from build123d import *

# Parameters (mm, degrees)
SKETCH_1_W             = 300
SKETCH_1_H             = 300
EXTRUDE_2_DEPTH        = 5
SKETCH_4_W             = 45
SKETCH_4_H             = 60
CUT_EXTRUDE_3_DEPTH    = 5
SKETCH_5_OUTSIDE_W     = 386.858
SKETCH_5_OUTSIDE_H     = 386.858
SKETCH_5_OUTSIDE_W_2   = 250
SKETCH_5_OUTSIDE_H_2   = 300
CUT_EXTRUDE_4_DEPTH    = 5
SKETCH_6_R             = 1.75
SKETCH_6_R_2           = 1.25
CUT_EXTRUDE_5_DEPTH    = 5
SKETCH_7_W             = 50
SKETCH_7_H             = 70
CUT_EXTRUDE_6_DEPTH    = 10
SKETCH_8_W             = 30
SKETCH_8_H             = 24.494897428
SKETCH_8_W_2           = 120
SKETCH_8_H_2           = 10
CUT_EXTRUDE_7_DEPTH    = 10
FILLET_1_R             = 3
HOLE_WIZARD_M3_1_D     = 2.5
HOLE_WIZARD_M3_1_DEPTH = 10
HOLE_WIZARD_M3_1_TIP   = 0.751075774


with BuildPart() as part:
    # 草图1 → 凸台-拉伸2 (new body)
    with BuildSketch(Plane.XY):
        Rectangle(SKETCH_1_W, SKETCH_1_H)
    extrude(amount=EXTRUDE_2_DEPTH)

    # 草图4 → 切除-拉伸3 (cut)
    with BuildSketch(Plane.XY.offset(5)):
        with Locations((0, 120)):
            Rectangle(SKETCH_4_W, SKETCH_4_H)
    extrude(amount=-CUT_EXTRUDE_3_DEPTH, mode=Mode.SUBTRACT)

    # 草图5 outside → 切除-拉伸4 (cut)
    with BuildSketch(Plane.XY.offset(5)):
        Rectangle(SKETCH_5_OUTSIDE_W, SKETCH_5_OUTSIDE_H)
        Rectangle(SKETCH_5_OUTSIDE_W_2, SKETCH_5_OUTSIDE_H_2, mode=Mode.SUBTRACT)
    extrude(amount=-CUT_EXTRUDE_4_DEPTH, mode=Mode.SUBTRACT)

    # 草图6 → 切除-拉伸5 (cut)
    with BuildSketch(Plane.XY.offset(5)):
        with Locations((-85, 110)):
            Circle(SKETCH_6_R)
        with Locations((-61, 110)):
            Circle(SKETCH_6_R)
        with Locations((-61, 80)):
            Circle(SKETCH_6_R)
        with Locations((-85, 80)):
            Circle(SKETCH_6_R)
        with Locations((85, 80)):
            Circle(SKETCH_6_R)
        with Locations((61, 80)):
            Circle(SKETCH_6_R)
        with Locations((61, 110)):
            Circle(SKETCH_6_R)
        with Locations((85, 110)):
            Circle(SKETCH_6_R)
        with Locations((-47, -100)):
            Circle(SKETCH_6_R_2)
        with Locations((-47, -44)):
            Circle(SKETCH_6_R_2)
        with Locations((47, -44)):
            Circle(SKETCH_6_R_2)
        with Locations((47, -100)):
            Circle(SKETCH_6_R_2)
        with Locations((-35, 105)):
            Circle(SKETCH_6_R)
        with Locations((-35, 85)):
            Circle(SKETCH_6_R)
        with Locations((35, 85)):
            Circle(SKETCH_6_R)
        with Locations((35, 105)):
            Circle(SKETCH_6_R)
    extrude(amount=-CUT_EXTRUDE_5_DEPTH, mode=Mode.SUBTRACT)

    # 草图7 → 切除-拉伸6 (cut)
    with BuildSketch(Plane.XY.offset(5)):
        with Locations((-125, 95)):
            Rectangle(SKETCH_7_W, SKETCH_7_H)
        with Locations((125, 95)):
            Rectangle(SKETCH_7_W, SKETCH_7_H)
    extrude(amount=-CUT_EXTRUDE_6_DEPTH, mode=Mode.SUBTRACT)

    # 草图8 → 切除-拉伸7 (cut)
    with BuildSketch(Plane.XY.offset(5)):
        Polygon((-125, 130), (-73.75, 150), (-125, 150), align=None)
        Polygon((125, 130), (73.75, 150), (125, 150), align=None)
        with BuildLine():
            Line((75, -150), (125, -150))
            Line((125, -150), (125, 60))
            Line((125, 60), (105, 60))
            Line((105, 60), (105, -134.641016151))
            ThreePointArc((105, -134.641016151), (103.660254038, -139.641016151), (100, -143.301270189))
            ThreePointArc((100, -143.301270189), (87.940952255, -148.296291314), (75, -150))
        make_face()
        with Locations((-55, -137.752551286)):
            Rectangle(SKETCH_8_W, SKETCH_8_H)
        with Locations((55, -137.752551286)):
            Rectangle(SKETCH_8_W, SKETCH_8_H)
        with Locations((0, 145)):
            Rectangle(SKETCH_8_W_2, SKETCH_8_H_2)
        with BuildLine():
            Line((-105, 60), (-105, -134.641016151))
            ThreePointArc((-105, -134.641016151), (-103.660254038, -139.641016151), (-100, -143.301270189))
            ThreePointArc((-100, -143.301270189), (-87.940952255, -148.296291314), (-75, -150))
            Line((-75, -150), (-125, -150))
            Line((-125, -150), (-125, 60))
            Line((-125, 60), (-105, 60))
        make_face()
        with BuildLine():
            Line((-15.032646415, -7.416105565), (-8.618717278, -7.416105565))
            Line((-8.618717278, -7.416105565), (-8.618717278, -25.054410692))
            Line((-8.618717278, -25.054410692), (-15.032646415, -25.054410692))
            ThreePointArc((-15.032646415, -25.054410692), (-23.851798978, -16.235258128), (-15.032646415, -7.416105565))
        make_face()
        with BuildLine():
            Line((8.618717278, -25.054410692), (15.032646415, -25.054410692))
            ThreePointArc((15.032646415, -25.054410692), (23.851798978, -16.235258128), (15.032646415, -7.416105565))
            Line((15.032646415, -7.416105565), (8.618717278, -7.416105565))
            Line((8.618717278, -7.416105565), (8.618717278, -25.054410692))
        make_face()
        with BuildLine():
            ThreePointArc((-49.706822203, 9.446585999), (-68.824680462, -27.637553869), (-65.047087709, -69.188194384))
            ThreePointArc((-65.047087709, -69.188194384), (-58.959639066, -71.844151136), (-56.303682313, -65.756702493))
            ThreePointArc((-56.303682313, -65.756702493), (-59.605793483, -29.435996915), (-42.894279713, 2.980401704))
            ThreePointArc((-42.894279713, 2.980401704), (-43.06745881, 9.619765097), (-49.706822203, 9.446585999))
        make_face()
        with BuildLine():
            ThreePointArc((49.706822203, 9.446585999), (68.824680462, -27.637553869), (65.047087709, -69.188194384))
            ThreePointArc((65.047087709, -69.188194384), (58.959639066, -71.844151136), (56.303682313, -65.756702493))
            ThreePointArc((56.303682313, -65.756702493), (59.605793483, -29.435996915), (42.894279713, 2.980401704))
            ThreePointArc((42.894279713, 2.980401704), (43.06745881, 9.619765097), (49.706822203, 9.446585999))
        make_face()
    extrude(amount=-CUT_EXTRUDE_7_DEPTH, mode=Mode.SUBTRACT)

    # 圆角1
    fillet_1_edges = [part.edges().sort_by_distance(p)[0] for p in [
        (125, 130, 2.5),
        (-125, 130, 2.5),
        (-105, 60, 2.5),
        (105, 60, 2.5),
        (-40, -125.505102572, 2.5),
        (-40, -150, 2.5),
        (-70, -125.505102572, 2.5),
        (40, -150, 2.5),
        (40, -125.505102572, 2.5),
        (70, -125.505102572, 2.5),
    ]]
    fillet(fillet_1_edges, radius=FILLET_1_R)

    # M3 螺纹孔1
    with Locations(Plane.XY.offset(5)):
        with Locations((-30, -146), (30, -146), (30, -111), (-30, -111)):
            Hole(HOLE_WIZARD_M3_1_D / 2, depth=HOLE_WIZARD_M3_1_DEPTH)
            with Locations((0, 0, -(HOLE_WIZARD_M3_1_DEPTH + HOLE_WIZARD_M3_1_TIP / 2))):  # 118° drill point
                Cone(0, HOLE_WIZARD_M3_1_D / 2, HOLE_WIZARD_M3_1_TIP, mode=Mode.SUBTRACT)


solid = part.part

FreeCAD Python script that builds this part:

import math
import FreeCAD as App
import Part
import Sketcher
Q = App.Units.Quantity


def edges_at(feature, points):
    """Names of the edges that pass closest to the given points."""
    edges = feature.Shape.Edges
    near = lambda p: min(range(len(edges)), key=lambda i: edges[i].distToShape(Part.Vertex(*p))[0])
    return sorted({f"Edge{near(p) + 1}" for p in points})

doc = App.newDocument("Part")
body = doc.addObject("PartDesign::Body", "Body")

sketch1 = body.newObject("Sketcher::SketchObject", "Sketch")
sketch1.AttachmentSupport = (doc.getObject("XY_Plane"), [""])
sketch1.MapMode = "FlatFace"
sketch1.addGeometry([
    Part.LineSegment(App.Vector(-150, 150, 0), App.Vector(-150, -150, 0)),
    Part.LineSegment(App.Vector(-150, -150, 0), App.Vector(150, -150, 0)),
    Part.LineSegment(App.Vector(150, -150, 0), App.Vector(150, 150, 0)),
    Part.LineSegment(App.Vector(150, 150, 0), App.Vector(-150, 150, 0)),
], False)
sketch1.addConstraint([
    Sketcher.Constraint("Coincident", 0, 2, 1, 1),
    Sketcher.Constraint("Coincident", 1, 2, 2, 1),
    Sketcher.Constraint("Coincident", 2, 2, 3, 1),
    Sketcher.Constraint("Coincident", 3, 2, 0, 1),
    Sketcher.Constraint("Vertical", 0),
    Sketcher.Constraint("Horizontal", 1),
    Sketcher.Constraint("Vertical", 2),
    Sketcher.Constraint("Horizontal", 3),
    Sketcher.Constraint("Symmetric", 0, 2, 2, 2, -1, 1),
    Sketcher.Constraint("Equal", 3, 0),
    Sketcher.Constraint("DistanceX", 1, 1, 1, 2, Q("300 mm")),
])
pad1 = body.newObject("PartDesign::Pad", "Pad")
pad1.Profile = sketch1
pad1.Length = 5

sketch2 = body.newObject("Sketcher::SketchObject", "Sketch001")
sketch2.AttachmentSupport = (doc.getObject("XY_Plane"), [""])
sketch2.MapMode = "FlatFace"
sketch2.AttachmentOffset = App.Placement(App.Vector(0, 0, 5), App.Rotation())
sketch2.addGeometry([
    Part.LineSegment(App.Vector(-22, 150, 0), App.Vector(-22, 90, 0)),
    Part.LineSegment(App.Vector(-22, 90, 0), App.Vector(22, 90, 0)),
    Part.LineSegment(App.Vector(22, 90, 0), App.Vector(22, 150, 0)),
    Part.LineSegment(App.Vector(22, 150, 0), App.Vector(-22, 150, 0)),
], False)
sketch2.addConstraint([
    Sketcher.Constraint("Coincident", 0, 2, 1, 1),
    Sketcher.Constraint("Coincident", 1, 2, 2, 1),
    Sketcher.Constraint("Coincident", 2, 2, 3, 1),
    Sketcher.Constraint("Coincident", 3, 2, 0, 1),
    Sketcher.Constraint("Vertical", 0),
    Sketcher.Constraint("Horizontal", 1),
    Sketcher.Constraint("Vertical", 2),
    Sketcher.Constraint("Horizontal", 3),
    Sketcher.Constraint("DistanceX", 1, 1, 1, 2, Q("45 mm")),
    Sketcher.Constraint("DistanceY", 0, 2, 0, 1, Q("60 mm")),
    Sketcher.Constraint("DistanceY", -1, 1, 0, 2, Q("90 mm")),
    Sketcher.Constraint("DistanceX", 0, 2, -1, 1, Q("22.5 mm")),
])
pocket1 = body.newObject("PartDesign::Pocket", "Pocket")
pocket1.Profile = sketch2
pocket1.Length = 5

sketch3 = body.newObject("Sketcher::SketchObject", "Sketch002")
sketch3.AttachmentSupport = (doc.getObject("XY_Plane"), [""])
sketch3.MapMode = "FlatFace"
sketch3.AttachmentOffset = App.Placement(App.Vector(0, 0, 5), App.Rotation())
sketch3.addGeometry([
    Part.LineSegment(App.Vector(-193, 193, 0), App.Vector(-193, -193, 0)),
    Part.LineSegment(App.Vector(-193, -193, 0), App.Vector(193, -193, 0)),
    Part.LineSegment(App.Vector(193, -193, 0), App.Vector(193, 193, 0)),
    Part.LineSegment(App.Vector(193, 193, 0), App.Vector(-193, 193, 0)),
    Part.LineSegment(App.Vector(125, -150, 0), App.Vector(-125, -150, 0)),
    Part.LineSegment(App.Vector(-125, -150, 0), App.Vector(-125, 150, 0)),
    Part.LineSegment(App.Vector(-125, 150, 0), App.Vector(125, 150, 0)),
    Part.LineSegment(App.Vector(125, 150, 0), App.Vector(125, -150, 0)),
], False)
sketch3.addConstraint([
    Sketcher.Constraint("Coincident", 0, 2, 1, 1),
    Sketcher.Constraint("Coincident", 1, 2, 2, 1),
    Sketcher.Constraint("Coincident", 2, 2, 3, 1),
    Sketcher.Constraint("Coincident", 3, 2, 0, 1),
    Sketcher.Constraint("Coincident", 4, 2, 5, 1),
    Sketcher.Constraint("Coincident", 5, 2, 6, 1),
    Sketcher.Constraint("Coincident", 6, 2, 7, 1),
    Sketcher.Constraint("Coincident", 7, 2, 4, 1),
    Sketcher.Constraint("Vertical", 0),
    Sketcher.Constraint("Horizontal", 1),
    Sketcher.Constraint("Vertical", 2),
    Sketcher.Constraint("Horizontal", 3),
    Sketcher.Constraint("Horizontal", 4),
    Sketcher.Constraint("Vertical", 5),
    Sketcher.Constraint("Horizontal", 6),
    Sketcher.Constraint("Vertical", 7),
    Sketcher.Constraint("Symmetric", 0, 2, 2, 2, -1, 1),
    Sketcher.Constraint("Symmetric", 4, 2, 6, 2, -1, 1),
    Sketcher.Constraint("Equal", 3, 0),
    Sketcher.Constraint("DistanceX", 4, 2, 4, 1, Q("250 mm")),
    Sketcher.Constraint("DistanceY", 5, 1, 5, 2, Q("300 mm")),
    Sketcher.Constraint("DistanceX", 1, 1, 1, 2, Q("386.858 mm")),
])
pocket2 = body.newObject("PartDesign::Pocket", "Pocket001")
pocket2.Profile = sketch3
pocket2.Length = 5

sketch4 = body.newObject("Sketcher::SketchObject", "Sketch003")
sketch4.AttachmentSupport = (doc.getObject("XY_Plane"), [""])
sketch4.MapMode = "FlatFace"
sketch4.AttachmentOffset = App.Placement(App.Vector(0, 0, 5), App.Rotation())
sketch4.addGeometry([
    Part.Circle(App.Vector(-85, 110, 0), App.Vector(0, 0, 1), 1.8),
    Part.Circle(App.Vector(-61, 110, 0), App.Vector(0, 0, 1), 1.8),
    Part.Circle(App.Vector(-61, 80, 0), App.Vector(0, 0, 1), 1.8),
    Part.Circle(App.Vector(-85, 80, 0), App.Vector(0, 0, 1), 1.8),
    Part.Circle(App.Vector(85, 80, 0), App.Vector(0, 0, 1), 1.8),
    Part.Circle(App.Vector(61, 80, 0), App.Vector(0, 0, 1), 1.8),
    Part.Circle(App.Vector(61, 110, 0), App.Vector(0, 0, 1), 1.8),
    Part.Circle(App.Vector(85, 110, 0), App.Vector(0, 0, 1), 1.8),
    Part.Circle(App.Vector(-47, -100, 0), App.Vector(0, 0, 1), 1.2),
    Part.Circle(App.Vector(-47, -44, 0), App.Vector(0, 0, 1), 1.2),
    Part.Circle(App.Vector(47, -44, 0), App.Vector(0, 0, 1), 1.2),
    Part.Circle(App.Vector(47, -100, 0), App.Vector(0, 0, 1), 1.2),
    Part.Circle(App.Vector(-35, 105, 0), App.Vector(0, 0, 1), 1.8),
    Part.Circle(App.Vector(-35, 85, 0), App.Vector(0, 0, 1), 1.8),
    Part.Circle(App.Vector(35, 85, 0), App.Vector(0, 0, 1), 1.8),
    Part.Circle(App.Vector(35, 105, 0), App.Vector(0, 0, 1), 1.8),
], False)
sketch4.addConstraint([
    Sketcher.Constraint("Equal", 0, 1),
    Sketcher.Constraint("Equal", 1, 2),
    Sketcher.Constraint("Equal", 2, 3),
    Sketcher.Constraint("Equal", 3, 4),
    Sketcher.Constraint("Equal", 4, 5),
    Sketcher.Constraint("Equal", 5, 6),
    Sketcher.Constraint("Equal", 6, 7),
    Sketcher.Constraint("Equal", 8, 9),
    Sketcher.Constraint("Equal", 9, 10),
    Sketcher.Constraint("Equal", 10, 11),
    Sketcher.Constraint("Equal", 7, 12),
    Sketcher.Constraint("Equal", 12, 13),
    Sketcher.Constraint("Equal", 13, 14),
    Sketcher.Constraint("Equal", 14, 15),
    Sketcher.Constraint("Symmetric", 3, 3, 4, 3, -2),
    Sketcher.Constraint("Symmetric", 2, 3, 5, 3, -2),
    Sketcher.Constraint("Symmetric", 1, 3, 6, 3, -2),
    Sketcher.Constraint("Symmetric", 0, 3, 7, 3, -2),
    Sketcher.Constraint("Symmetric", 9, 3, 10, 3, -2),
    Sketcher.Constraint("Symmetric", 8, 3, 11, 3, -2),
    Sketcher.Constraint("Symmetric", 13, 3, 14, 3, -2),
    Sketcher.Constraint("Symmetric", 12, 3, 15, 3, -2),
    Sketcher.Constraint("Horizontal", 0, 3, 1, 3),
    Sketcher.Constraint("Horizontal", 2, 3, 3, 3),
    Sketcher.Constraint("Vertical", 1, 3, 2, 3),
    Sketcher.Constraint("Vertical", 0, 3, 3, 3),
    Sketcher.Constraint("Vertical", 8, 3, 9, 3),
    Sketcher.Constraint("Vertical", 12, 3, 13, 3),
    Sketcher.Constraint("Diameter", 0, Q("3.5 mm")),
    Sketcher.Constraint("Diameter", 8, Q("2.5 mm")),
    Sketcher.Constraint("DistanceX", 0, 3, -1, 1, Q("85 mm")),
    Sketcher.Constraint("DistanceY", -1, 1, 0, 3, Q("110 mm")),
    Sketcher.Constraint("DistanceX", 1, 3, -1, 1, Q("61 mm")),
    Sketcher.Constraint("DistanceY", -1, 1, 2, 3, Q("80 mm")),
    Sketcher.Constraint("DistanceX", 8, 3, -1, 1, Q("47 mm")),
    Sketcher.Constraint("DistanceY", 8, 3, -1, 1, Q("100 mm")),
    Sketcher.Constraint("DistanceY", 9, 3, -1, 1, Q("44 mm")),
    Sketcher.Constraint("DistanceX", 12, 3, -1, 1, Q("35 mm")),
    Sketcher.Constraint("DistanceY", -1, 1, 12, 3, Q("105 mm")),
    Sketcher.Constraint("DistanceY", -1, 1, 13, 3, Q("85 mm")),
])
pocket3 = body.newObject("PartDesign::Pocket", "Pocket002")
pocket3.Profile = sketch4
pocket3.Length = 5

sketch5 = body.newObject("Sketcher::SketchObject", "Sketch004")
sketch5.AttachmentSupport = (doc.getObject("XY_Plane"), [""])
sketch5.MapMode = "FlatFace"
sketch5.AttachmentOffset = App.Placement(App.Vector(0, 0, 5), App.Rotation())
sketch5.addGeometry([
    Part.LineSegment(App.Vector(-150, 130, 0), App.Vector(-150, 60, 0)),
    Part.LineSegment(App.Vector(-150, 60, 0), App.Vector(-100, 60, 0)),
    Part.LineSegment(App.Vector(-100, 60, 0), App.Vector(-100, 130, 0)),
    Part.LineSegment(App.Vector(-100, 130, 0), App.Vector(-150, 130, 0)),
    Part.LineSegment(App.Vector(100, 130, 0), App.Vector(100, 60, 0)),
    Part.LineSegment(App.Vector(100, 60, 0), App.Vector(150, 60, 0)),
    Part.LineSegment(App.Vector(150, 60, 0), App.Vector(150, 130, 0)),
    Part.LineSegment(App.Vector(150, 130, 0), App.Vector(100, 130, 0)),
], False)
sketch5.addConstraint([
    Sketcher.Constraint("Coincident", 0, 2, 1, 1),
    Sketcher.Constraint("Coincident", 1, 2, 2, 1),
    Sketcher.Constraint("Coincident", 2, 2, 3, 1),
    Sketcher.Constraint("Coincident", 3, 2, 0, 1),
    Sketcher.Constraint("Coincident", 4, 2, 5, 1),
    Sketcher.Constraint("Coincident", 5, 2, 6, 1),
    Sketcher.Constraint("Coincident", 6, 2, 7, 1),
    Sketcher.Constraint("Coincident", 7, 2, 4, 1),
    Sketcher.Constraint("Vertical", 0),
    Sketcher.Constraint("Horizontal", 1),
    Sketcher.Constraint("Vertical", 2),
    Sketcher.Constraint("Horizontal", 3),
    Sketcher.Constraint("Vertical", 4),
    Sketcher.Constraint("Horizontal", 5),
    Sketcher.Constraint("Vertical", 6),
    Sketcher.Constraint("Horizontal", 7),
    Sketcher.Constraint("Symmetric", 1, 2, 4, 2, -2),
    Sketcher.Constraint("Symmetric", 3, 2, 6, 2, -2),
    Sketcher.Constraint("DistanceX", 1, 1, 1, 2, Q("50 mm")),
    Sketcher.Constraint("DistanceY", 0, 2, 0, 1, Q("70 mm")),
    Sketcher.Constraint("DistanceX", 0, 2, -1, 1, Q("150 mm")),
    Sketcher.Constraint("DistanceY", -1, 1, 0, 2, Q("60 mm")),
])
pocket4 = body.newObject("PartDesign::Pocket", "Pocket003")
pocket4.Profile = sketch5
pocket4.Length = 10

sketch6 = body.newObject("Sketcher::SketchObject", "Sketch005")
sketch6.AttachmentSupport = (doc.getObject("XY_Plane"), [""])
sketch6.MapMode = "FlatFace"
sketch6.AttachmentOffset = App.Placement(App.Vector(0, 0, 5), App.Rotation())
sketch6.addGeometry([
    Part.LineSegment(App.Vector(-125, 130, 0), App.Vector(-73.8, 150, 0)),
    Part.LineSegment(App.Vector(-73.8, 150, 0), App.Vector(-125, 150, 0)),
    Part.LineSegment(App.Vector(-125, 150, 0), App.Vector(-125, 130, 0)),
    Part.LineSegment(App.Vector(73.8, 150, 0), App.Vector(125, 130, 0)),
    Part.LineSegment(App.Vector(125, 130, 0), App.Vector(125, 150, 0)),
    Part.LineSegment(App.Vector(125, 150, 0), App.Vector(73.8, 150, 0)),
    Part.LineSegment(App.Vector(75, -150, 0), App.Vector(125, -150, 0)),
    Part.LineSegment(App.Vector(125, -150, 0), App.Vector(125, 60, 0)),
    Part.LineSegment(App.Vector(125, 60, 0), App.Vector(105, 60, 0)),
    Part.LineSegment(App.Vector(105, 60, 0), App.Vector(105, -134.6, 0)),
    Part.ArcOfCircle(Part.Circle(App.Vector(95, -134.6, 0), App.Vector(0, 0, 1), 10), math.radians(-60), math.radians(0)),
    Part.ArcOfCircle(Part.Circle(App.Vector(75, -100, 0), App.Vector(0, 0, 1), 50), math.radians(-90), math.radians(-60)),
    Part.LineSegment(App.Vector(-70, -125.5, 0), App.Vector(-70, -150, 0)),
    Part.LineSegment(App.Vector(-70, -150, 0), App.Vector(-40, -150, 0)),
    Part.LineSegment(App.Vector(-40, -150, 0), App.Vector(-40, -125.5, 0)),
    Part.LineSegment(App.Vector(-40, -125.5, 0), App.Vector(-70, -125.5, 0)),
    Part.LineSegment(App.Vector(40, -125.5, 0), App.Vector(40, -150, 0)),
    Part.LineSegment(App.Vector(40, -150, 0), App.Vector(70, -150, 0)),
    Part.LineSegment(App.Vector(70, -150, 0), App.Vector(70, -125.5, 0)),
    Part.LineSegment(App.Vector(70, -125.5, 0), App.Vector(40, -125.5, 0)),
    Part.LineSegment(App.Vector(-60, 150, 0), App.Vector(-60, 140, 0)),
    Part.LineSegment(App.Vector(-60, 140, 0), App.Vector(60, 140, 0)),
    Part.LineSegment(App.Vector(60, 140, 0), App.Vector(60, 150, 0)),
    Part.LineSegment(App.Vector(60, 150, 0), App.Vector(-60, 150, 0)),
    Part.LineSegment(App.Vector(-105, -134.6, 0), App.Vector(-105, 60, 0)),
    Part.LineSegment(App.Vector(-105, 60, 0), App.Vector(-125, 60, 0)),
    Part.LineSegment(App.Vector(-125, 60, 0), App.Vector(-125, -150, 0)),
    Part.LineSegment(App.Vector(-125, -150, 0), App.Vector(-75, -150, 0)),
    Part.ArcOfCircle(Part.Circle(App.Vector(-75, -100, 0), App.Vector(0, 0, 1), 50), math.radians(-120), math.radians(-90)),
    Part.ArcOfCircle(Part.Circle(App.Vector(-95, -134.6, 0), App.Vector(0, 0, 1), 10), math.radians(180), math.radians(240)),
    Part.LineSegment(App.Vector(-8.6, -7.4, 0), App.Vector(-15, -7.4, 0)),
    Part.ArcOfCircle(Part.Circle(App.Vector(-15, -16.2, 0), App.Vector(0, 0, 1), 8.8), math.radians(90), math.radians(270)),
    Part.LineSegment(App.Vector(-15, -25.1, 0), App.Vector(-8.6, -25.1, 0)),
    Part.LineSegment(App.Vector(-8.6, -25.1, 0), App.Vector(-8.6, -7.4, 0)),
    Part.LineSegment(App.Vector(8.6, -25.1, 0), App.Vector(15, -25.1, 0)),
    Part.ArcOfCircle(Part.Circle(App.Vector(15, -16.2, 0), App.Vector(0, 0, 1), 8.8), math.radians(-90), math.radians(90)),
    Part.LineSegment(App.Vector(15, -7.4, 0), App.Vector(8.6, -7.4, 0)),
    Part.LineSegment(App.Vector(8.6, -7.4, 0), App.Vector(8.6, -25.1, 0)),
    Part.ArcOfCircle(Part.Circle(App.Vector(4.4, -41.9, 0), App.Vector(0, 0, 1), 74.6), math.radians(136), math.radians(201)),
    Part.ArcOfCircle(Part.Circle(App.Vector(-60.7, -67.5, 0), App.Vector(0, 0, 1), 4.7), math.radians(-159), math.radians(21)),
    Part.ArcOfCircle(Part.Circle(App.Vector(4.4, -41.9, 0), App.Vector(0, 0, 1), 65.2), math.radians(136), math.radians(201)),
    Part.ArcOfCircle(Part.Circle(App.Vector(-46.3, 6.2, 0), App.Vector(0, 0, 1), 4.7), math.radians(-44), math.radians(136)),
    Part.ArcOfCircle(Part.Circle(App.Vector(-4.4, -41.9, 0), App.Vector(0, 0, 1), 74.6), math.radians(-21), math.radians(44)),
    Part.ArcOfCircle(Part.Circle(App.Vector(46.3, 6.2, 0), App.Vector(0, 0, 1), 4.7), math.radians(44), math.radians(224)),
    Part.ArcOfCircle(Part.Circle(App.Vector(-4.4, -41.9, 0), App.Vector(0, 0, 1), 65.2), math.radians(-21), math.radians(44)),
    Part.ArcOfCircle(Part.Circle(App.Vector(60.7, -67.5, 0), App.Vector(0, 0, 1), 4.7), math.radians(159), math.radians(339)),
], False)
sketch6.addConstraint([
    Sketcher.Constraint("Coincident", 0, 2, 1, 1),
    Sketcher.Constraint("Coincident", 1, 2, 2, 1),
    Sketcher.Constraint("Coincident", 2, 2, 0, 1),
    Sketcher.Constraint("Coincident", 3, 2, 4, 1),
    Sketcher.Constraint("Coincident", 4, 2, 5, 1),
    Sketcher.Constraint("Coincident", 5, 2, 3, 1),
    Sketcher.Constraint("Coincident", 6, 2, 7, 1),
    Sketcher.Constraint("Coincident", 7, 2, 8, 1),
    Sketcher.Constraint("Coincident", 8, 2, 9, 1),
    Sketcher.Constraint("Tangent", 9, 2, 10, 2),
    Sketcher.Constraint("Tangent", 10, 1, 11, 2),
    Sketcher.Constraint("Tangent", 11, 1, 6, 1),
    Sketcher.Constraint("Coincident", 12, 2, 13, 1),
    Sketcher.Constraint("Coincident", 13, 2, 14, 1),
    Sketcher.Constraint("Coincident", 14, 2, 15, 1),
    Sketcher.Constraint("Coincident", 15, 2, 12, 1),
    Sketcher.Constraint("Coincident", 16, 2, 17, 1),
    Sketcher.Constraint("Coincident", 17, 2, 18, 1),
    Sketcher.Constraint("Coincident", 18, 2, 19, 1),
    Sketcher.Constraint("Coincident", 19, 2, 16, 1),
    Sketcher.Constraint("Coincident", 20, 2, 21, 1),
    Sketcher.Constraint("Coincident", 21, 2, 22, 1),
    Sketcher.Constraint("Coincident", 22, 2, 23, 1),
    Sketcher.Constraint("Coincident", 23, 2, 20, 1),
    Sketcher.Constraint("Coincident", 24, 2, 25, 1),
    Sketcher.Constraint("Coincident", 25, 2, 26, 1),
    Sketcher.Constraint("Coincident", 26, 2, 27, 1),
    Sketcher.Constraint("Tangent", 27, 2, 28, 2),
    Sketcher.Constraint("Tangent", 28, 1, 29, 2),
    Sketcher.Constraint("Tangent", 29, 1, 24, 1),
    Sketcher.Constraint("Tangent", 30, 2, 31, 1),
    Sketcher.Constraint("Tangent", 31, 2, 32, 1),
    Sketcher.Constraint("Coincident", 32, 2, 33, 1),
    Sketcher.Constraint("Coincident", 33, 2, 30, 1),
    Sketcher.Constraint("Tangent", 34, 2, 35, 1),
    Sketcher.Constraint("Tangent", 35, 2, 36, 1),
    Sketcher.Constraint("Coincident", 36, 2, 37, 1),
    Sketcher.Constraint("Coincident", 37, 2, 34, 1),
    Sketcher.Constraint("Tangent", 38, 2, 39, 1),
    Sketcher.Constraint("Tangent", 39, 2, 40, 2),
    Sketcher.Constraint("Tangent", 40, 1, 41, 1),
    Sketcher.Constraint("Tangent", 41, 2, 38, 1),
    Sketcher.Constraint("Tangent", 42, 2, 43, 1),
    Sketcher.Constraint("Tangent", 43, 2, 44, 2),
    Sketcher.Constraint("Tangent", 44, 1, 45, 1),
    Sketcher.Constraint("Tangent", 45, 2, 42, 1),
    Sketcher.Constraint("Horizontal", 1),
    Sketcher.Constraint("Vertical", 2),
    Sketcher.Constraint("Vertical", 4),
    Sketcher.Constraint("Horizontal", 5),
    Sketcher.Constraint("Horizontal", 6),
    Sketcher.Constraint("Vertical", 7),
    Sketcher.Constraint("Horizontal", 8),
    Sketcher.Constraint("Vertical", 9),
    Sketcher.Constraint("Vertical", 12),
    Sketcher.Constraint("Horizontal", 13),
    Sketcher.Constraint("Vertical", 14),
    Sketcher.Constraint("Horizontal", 15),
    Sketcher.Constraint("Vertical", 16),
    Sketcher.Constraint("Horizontal", 17),
    Sketcher.Constraint("Vertical", 18),
    Sketcher.Constraint("Horizontal", 19),
    Sketcher.Constraint("Vertical", 20),
    Sketcher.Constraint("Horizontal", 21),
    Sketcher.Constraint("Vertical", 22),
    Sketcher.Constraint("Horizontal", 23),
    Sketcher.Constraint("Vertical", 24),
    Sketcher.Constraint("Horizontal", 25),
    Sketcher.Constraint("Vertical", 26),
    Sketcher.Constraint("Horizontal", 27),
    Sketcher.Constraint("Horizontal", 30),
    Sketcher.Constraint("Horizontal", 32),
    Sketcher.Constraint("Vertical", 33),
    Sketcher.Constraint("Horizontal", 34),
    Sketcher.Constraint("Horizontal", 36),
    Sketcher.Constraint("Vertical", 37),
    Sketcher.Constraint("Coincident", 40, 3, 38, 3),
    Sketcher.Constraint("Coincident", 44, 3, 42, 3),
    Sketcher.Constraint("Equal", 11, 28),
    Sketcher.Constraint("Equal", 10, 29),
    Sketcher.Constraint("Equal", 31, 35),
    Sketcher.Constraint("Equal", 38, 42),
    Sketcher.Constraint("Equal", 41, 43),
    Sketcher.Constraint("Symmetric", 1, 2, 6, 2, -1, 1),
    Sketcher.Constraint("Symmetric", 4, 2, 26, 2, -1, 1),
    Sketcher.Constraint("Symmetric", 11, 3, 28, 3, -2),
    Sketcher.Constraint("Symmetric", 31, 3, 35, 3, -2),
    Sketcher.Constraint("Symmetric", 38, 3, 42, 3, -2),
    Sketcher.Constraint("Symmetric", 2, 2, 3, 2, -2),
    Sketcher.Constraint("Symmetric", 13, 2, 16, 2, -2),
    Sketcher.Constraint("Symmetric", 15, 2, 18, 2, -2),
    Sketcher.Constraint("Symmetric", 8, 2, 24, 2, -2),
    Sketcher.Constraint("Horizontal", 41, 3, 43, 3),
    Sketcher.Constraint("Horizontal", 39, 3, 45, 3),
    Sketcher.Constraint("Horizontal", 11, 1, 12, 2),
    Sketcher.Constraint("Horizontal", 5, 2, 22, 2),
    Sketcher.Constraint("Equal", 1, 5),
    Sketcher.Constraint("Equal", 32, 34),
    Sketcher.Constraint("Equal", 25, 2),
    Sketcher.Constraint("Radius", 10, Q("10 mm")),
    Sketcher.Constraint("Radius", 11, Q("50 mm")),
    Sketcher.Constraint("DistanceX", 6, 1, 6, 2, Q("50 mm")),
    Sketcher.Constraint("DistanceX", 8, 2, 8, 1, Q("20 mm")),
    Sketcher.Constraint("DistanceX", 13, 1, 13, 2, Q("30 mm")),
    Sketcher.Constraint("DistanceX", 21, 1, 21, 2, Q("120 mm")),
    Sketcher.Constraint("DistanceY", 7, 1, 7, 2, Q("210 mm")),
    Sketcher.Constraint("DistanceY", 20, 2, 20, 1, Q("10 mm")),
    Sketcher.Constraint("DistanceX", -1, 1, 10, 3, Q("95 mm")),
    Sketcher.Constraint("DistanceY", 11, 3, -1, 1, Q("100 mm")),
    Sketcher.Constraint("DistanceX", 12, 2, -1, 1, Q("70 mm")),
    Sketcher.Constraint("DistanceX", 20, 2, -1, 1, Q("60 mm")),
    Sketcher.Constraint("DistanceX", 1, 2, 1, 1, Q("51.25 mm")),
    Sketcher.Constraint("Radius", 38, Q("74.622632 mm")),
    Sketcher.Constraint("Radius", 40, Q("65.229961 mm")),
    Sketcher.Constraint("Radius", 31, Q("8.819153 mm")),
    Sketcher.Constraint("DistanceX", 30, 2, 30, 1, Q("6.413929 mm")),
    Sketcher.Constraint("DistanceY", -1, 1, 40, 1, Q("2.980402 mm")),
    Sketcher.Constraint("DistanceY", 30, 2, 41, 3, Q("13.629599 mm")),
    Sketcher.Constraint("DistanceY", 12, 2, 12, 1, Q("24.494897 mm")),
    Sketcher.Constraint("DistanceY", 31, 3, -1, 1, Q("16.235258 mm")),
    Sketcher.Constraint("DistanceY", 39, 3, -1, 1, Q("67.472448 mm")),
    Sketcher.Constraint("DistanceX", 41, 3, -1, 1, Q("46.300551 mm")),
    Sketcher.Constraint("DistanceX", 38, 3, 35, 3, Q("10.615372 mm")),
])
pocket5 = body.newObject("PartDesign::Pocket", "Pocket004")
pocket5.Profile = sketch6
pocket5.Length = 10
doc.recompute()

fillet = body.newObject("PartDesign::Fillet", "Fillet")
fillet.Base = (pocket5, edges_at(pocket5, [
    (125, 130, 2.5),
    (-125, 130, 2.5),
    (-105, 60, 2.5),
    (105, 60, 2.5),
    (-40, -125.505, 2.5),
    (-40, -150, 2.5),
    (-70, -125.505, 2.5),
    (40, -150, 2.5),
    (40, -125.505, 2.5),
    (70, -125.505, 2.5),
]))
fillet.Radius = 3

sketch7 = body.newObject("Sketcher::SketchObject", "Sketch006")
sketch7.AttachmentSupport = (doc.getObject("XY_Plane"), [""])
sketch7.MapMode = "FlatFace"
sketch7.AttachmentOffset = App.Placement(App.Vector(0, 0, 5), App.Rotation())
sketch7.addGeometry([
    Part.Circle(App.Vector(-30, -146, 0), App.Vector(0, 0, 1), 1.2),
    Part.Circle(App.Vector(30, -146, 0), App.Vector(0, 0, 1), 1.2),
    Part.Circle(App.Vector(30, -111, 0), App.Vector(0, 0, 1), 1.2),
    Part.Circle(App.Vector(-30, -111, 0), App.Vector(0, 0, 1), 1.2),
], False)
sketch7.addConstraint([
    Sketcher.Constraint("Equal", 0, 1),
    Sketcher.Constraint("Equal", 1, 2),
    Sketcher.Constraint("Equal", 2, 3),
    Sketcher.Constraint("Symmetric", 0, 3, 1, 3, -2),
    Sketcher.Constraint("Symmetric", 2, 3, 3, 3, -2),
    Sketcher.Constraint("Vertical", 1, 3, 2, 3),
    Sketcher.Constraint("Diameter", 0, Q("2.5 mm")),
    Sketcher.Constraint("DistanceX", 0, 3, -1, 1, Q("30 mm")),
    Sketcher.Constraint("DistanceY", 0, 3, -1, 1, Q("146 mm")),
    Sketcher.Constraint("DistanceY", 2, 3, -1, 1, Q("111 mm")),
])
doc.recompute()
hole = body.newObject("PartDesign::Hole", "Hole")
hole.Profile = sketch7
hole.ThreadType = "None"
hole.Diameter = 2.5
hole.DepthType = "Dimension"
hole.Depth = 10
hole.DrillPoint = "Angled"
hole.DrillPointAngle = 118

doc.recompute()
